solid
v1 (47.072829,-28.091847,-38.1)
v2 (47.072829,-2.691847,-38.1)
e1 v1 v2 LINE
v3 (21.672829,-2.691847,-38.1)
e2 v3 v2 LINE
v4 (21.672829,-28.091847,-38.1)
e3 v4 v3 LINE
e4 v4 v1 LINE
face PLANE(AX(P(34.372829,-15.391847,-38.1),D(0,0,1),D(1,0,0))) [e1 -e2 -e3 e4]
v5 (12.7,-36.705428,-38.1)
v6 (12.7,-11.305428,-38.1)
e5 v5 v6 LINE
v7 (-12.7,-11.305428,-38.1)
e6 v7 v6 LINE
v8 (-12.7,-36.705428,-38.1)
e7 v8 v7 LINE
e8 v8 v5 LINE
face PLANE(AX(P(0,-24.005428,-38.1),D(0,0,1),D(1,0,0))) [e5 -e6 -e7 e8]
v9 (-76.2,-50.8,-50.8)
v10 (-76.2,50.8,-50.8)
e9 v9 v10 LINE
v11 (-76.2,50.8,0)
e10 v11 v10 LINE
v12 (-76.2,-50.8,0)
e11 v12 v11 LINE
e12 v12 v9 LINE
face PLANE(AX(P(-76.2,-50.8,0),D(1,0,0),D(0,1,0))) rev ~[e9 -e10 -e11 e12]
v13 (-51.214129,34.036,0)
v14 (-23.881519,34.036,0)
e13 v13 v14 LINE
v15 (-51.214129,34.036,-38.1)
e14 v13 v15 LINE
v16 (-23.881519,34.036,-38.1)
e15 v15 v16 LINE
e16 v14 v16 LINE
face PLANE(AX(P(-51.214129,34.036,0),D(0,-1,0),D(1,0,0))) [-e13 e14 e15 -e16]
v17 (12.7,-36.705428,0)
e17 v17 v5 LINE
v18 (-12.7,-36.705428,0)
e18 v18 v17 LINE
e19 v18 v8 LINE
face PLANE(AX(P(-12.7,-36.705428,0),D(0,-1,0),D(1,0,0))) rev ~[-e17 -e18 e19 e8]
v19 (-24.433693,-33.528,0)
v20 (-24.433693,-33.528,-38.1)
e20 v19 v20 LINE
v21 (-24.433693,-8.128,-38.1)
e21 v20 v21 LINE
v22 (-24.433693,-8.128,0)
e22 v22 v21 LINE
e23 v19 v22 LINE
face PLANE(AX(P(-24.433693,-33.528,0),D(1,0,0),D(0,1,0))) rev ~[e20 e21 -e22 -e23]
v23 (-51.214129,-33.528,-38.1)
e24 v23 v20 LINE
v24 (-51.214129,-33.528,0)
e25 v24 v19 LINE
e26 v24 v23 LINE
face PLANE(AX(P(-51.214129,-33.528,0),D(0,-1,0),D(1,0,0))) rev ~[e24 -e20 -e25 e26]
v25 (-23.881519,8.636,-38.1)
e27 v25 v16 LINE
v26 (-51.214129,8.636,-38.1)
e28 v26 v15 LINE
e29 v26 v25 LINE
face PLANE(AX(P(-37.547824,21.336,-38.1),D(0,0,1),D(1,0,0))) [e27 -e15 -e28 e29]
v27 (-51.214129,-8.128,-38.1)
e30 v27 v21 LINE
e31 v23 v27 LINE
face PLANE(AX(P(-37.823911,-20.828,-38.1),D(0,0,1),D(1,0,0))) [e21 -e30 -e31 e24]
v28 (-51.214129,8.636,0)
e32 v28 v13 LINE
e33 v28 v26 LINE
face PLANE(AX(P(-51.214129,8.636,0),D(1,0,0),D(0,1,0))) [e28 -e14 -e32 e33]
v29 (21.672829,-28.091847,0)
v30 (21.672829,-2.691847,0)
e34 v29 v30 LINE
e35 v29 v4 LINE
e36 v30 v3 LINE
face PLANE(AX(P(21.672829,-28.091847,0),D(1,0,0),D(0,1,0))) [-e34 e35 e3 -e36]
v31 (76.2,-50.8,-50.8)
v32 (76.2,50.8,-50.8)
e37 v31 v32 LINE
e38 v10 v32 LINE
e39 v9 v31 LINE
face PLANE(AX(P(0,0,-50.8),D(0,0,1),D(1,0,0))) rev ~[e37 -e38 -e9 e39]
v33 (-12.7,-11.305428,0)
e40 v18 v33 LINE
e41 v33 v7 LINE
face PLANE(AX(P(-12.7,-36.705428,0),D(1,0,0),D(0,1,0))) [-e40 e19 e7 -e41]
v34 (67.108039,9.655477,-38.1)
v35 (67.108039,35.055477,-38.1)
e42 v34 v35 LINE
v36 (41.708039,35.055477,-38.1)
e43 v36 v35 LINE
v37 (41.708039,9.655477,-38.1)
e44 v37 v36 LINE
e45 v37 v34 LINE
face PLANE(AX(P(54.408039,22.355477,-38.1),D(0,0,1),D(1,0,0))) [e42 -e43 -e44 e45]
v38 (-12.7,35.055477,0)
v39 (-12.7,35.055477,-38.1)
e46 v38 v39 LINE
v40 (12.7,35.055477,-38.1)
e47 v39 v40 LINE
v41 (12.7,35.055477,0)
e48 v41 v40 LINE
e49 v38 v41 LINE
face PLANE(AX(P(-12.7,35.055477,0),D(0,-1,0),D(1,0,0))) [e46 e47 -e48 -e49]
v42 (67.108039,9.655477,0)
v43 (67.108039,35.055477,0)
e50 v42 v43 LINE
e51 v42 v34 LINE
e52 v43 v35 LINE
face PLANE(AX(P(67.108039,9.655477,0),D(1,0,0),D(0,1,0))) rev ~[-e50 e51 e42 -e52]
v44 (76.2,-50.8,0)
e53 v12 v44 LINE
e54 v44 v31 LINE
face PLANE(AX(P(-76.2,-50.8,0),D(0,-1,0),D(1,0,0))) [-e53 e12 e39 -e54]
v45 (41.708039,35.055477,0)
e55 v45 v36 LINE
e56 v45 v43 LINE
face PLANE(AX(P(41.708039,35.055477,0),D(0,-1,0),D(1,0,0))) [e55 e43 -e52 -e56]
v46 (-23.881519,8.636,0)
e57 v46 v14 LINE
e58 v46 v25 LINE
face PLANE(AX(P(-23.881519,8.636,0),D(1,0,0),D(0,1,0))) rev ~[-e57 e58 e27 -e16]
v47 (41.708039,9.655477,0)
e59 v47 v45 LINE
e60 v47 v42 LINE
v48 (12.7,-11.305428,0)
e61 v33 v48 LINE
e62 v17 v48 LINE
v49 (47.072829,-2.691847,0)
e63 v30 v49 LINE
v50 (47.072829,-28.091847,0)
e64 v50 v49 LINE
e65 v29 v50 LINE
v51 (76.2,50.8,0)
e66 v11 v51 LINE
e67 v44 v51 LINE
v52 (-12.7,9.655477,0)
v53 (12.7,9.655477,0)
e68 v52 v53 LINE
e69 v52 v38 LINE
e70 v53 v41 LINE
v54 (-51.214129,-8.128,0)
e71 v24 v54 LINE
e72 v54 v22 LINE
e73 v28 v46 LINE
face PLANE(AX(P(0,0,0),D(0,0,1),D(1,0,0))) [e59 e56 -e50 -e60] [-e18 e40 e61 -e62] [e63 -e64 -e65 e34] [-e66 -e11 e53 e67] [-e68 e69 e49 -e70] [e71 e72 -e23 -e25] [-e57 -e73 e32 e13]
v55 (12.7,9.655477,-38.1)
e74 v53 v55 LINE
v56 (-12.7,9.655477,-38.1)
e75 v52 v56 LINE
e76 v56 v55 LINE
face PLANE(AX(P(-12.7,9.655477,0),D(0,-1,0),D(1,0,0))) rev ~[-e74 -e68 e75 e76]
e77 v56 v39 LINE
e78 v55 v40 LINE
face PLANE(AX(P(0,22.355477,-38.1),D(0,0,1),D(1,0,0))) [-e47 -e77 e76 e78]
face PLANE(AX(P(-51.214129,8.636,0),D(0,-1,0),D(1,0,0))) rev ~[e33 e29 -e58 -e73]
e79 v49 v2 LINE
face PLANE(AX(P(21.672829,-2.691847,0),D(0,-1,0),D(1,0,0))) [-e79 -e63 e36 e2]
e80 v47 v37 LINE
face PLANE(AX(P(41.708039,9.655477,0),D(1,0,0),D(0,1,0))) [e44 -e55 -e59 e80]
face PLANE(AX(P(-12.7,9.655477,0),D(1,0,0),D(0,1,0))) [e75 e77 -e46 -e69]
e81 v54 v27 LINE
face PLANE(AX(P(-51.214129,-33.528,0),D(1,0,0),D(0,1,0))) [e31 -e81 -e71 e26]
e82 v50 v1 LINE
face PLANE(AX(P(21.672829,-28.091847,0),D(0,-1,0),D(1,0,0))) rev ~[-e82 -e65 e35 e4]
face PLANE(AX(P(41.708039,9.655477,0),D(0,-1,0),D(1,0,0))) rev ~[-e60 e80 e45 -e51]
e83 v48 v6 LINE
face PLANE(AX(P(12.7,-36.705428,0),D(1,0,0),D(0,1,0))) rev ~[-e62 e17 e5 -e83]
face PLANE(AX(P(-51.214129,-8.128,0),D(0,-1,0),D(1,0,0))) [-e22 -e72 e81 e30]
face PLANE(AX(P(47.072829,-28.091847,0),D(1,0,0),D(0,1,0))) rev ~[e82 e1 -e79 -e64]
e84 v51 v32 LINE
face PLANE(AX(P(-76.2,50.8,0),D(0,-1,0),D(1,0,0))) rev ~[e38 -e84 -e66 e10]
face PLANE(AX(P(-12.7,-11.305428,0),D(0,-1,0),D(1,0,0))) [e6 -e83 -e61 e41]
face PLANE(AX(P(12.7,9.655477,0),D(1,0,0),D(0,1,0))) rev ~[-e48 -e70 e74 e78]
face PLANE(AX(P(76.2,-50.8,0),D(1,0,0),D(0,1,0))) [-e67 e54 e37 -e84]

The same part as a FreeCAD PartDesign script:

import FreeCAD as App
import Part
import Sketcher
from FreeCAD import Vector
Q = App.Units.Quantity


def add_polygon(sketch, points):
    """Adds a closed chain of lines whose ends are joined by coincident constraints."""
    first, n = sketch.GeometryCount, len(points)
    for a, b in zip(points, points[1:] + points[:1]):
        sketch.addGeometry(Part.LineSegment(App.Vector(*a, 0), App.Vector(*b, 0)), False)
    for i in range(n):
        sketch.addConstraint(Sketcher.Constraint("Coincident", first + i, 2, first + (i + 1) % n, 1))

doc = App.newDocument("Part")
body = doc.addObject("PartDesign::Body", "Body")

# Sketch on XY plane
sketch1 = body.newObject("Sketcher::SketchObject", "Sketch")
sketch1.AttachmentSupport = (doc.getObject("XY_Plane"), [""])
sketch1.MapMode = "FlatFace"
add_polygon(sketch1, [(-76, 51), (-76, -51), (76, -51), (76, 51)])  # lines 0-3
sketch1.addConstraint([
    Sketcher.Constraint("Vertical", 0),
    Sketcher.Constraint("Horizontal", 1),
    Sketcher.Constraint("Vertical", 2),
    Sketcher.Constraint("Horizontal", 3),
    Sketcher.Constraint("Symmetric", 0, 2, 2, 2, -1, 1),
    Sketcher.Constraint("DistanceX", 1, 1, 1, 2, Q("6 in")),
    Sketcher.Constraint("DistanceY", 0, 2, 0, 1, Q("4 in")),
])
pad1 = body.newObject("PartDesign::Pad", "Pad")
pad1.Profile = sketch1
pad1.Length = Q("2 in")
pad1.Reversed = True

# Sketch on XY plane
sketch2 = body.newObject("Sketcher::SketchObject", "Sketch001")
sketch2.AttachmentSupport = (doc.getObject("XY_Plane"), [""])
sketch2.MapMode = "FlatFace"
add_polygon(sketch2, [(-51, 34), (-51, 9), (-24, 9), (-24, 34)])  # lines 0-3
add_polygon(sketch2, [(-13, 35), (-13, 10), (13, 10), (13, 35)])  # lines 4-7
add_polygon(sketch2, [(42, 35), (42, 10), (67, 10), (67, 35)])  # lines 8-11
add_polygon(sketch2, [(-13, -11), (-13, -37), (13, -37), (13, -11)])  # lines 12-15
add_polygon(sketch2, [(-51, -8), (-51, -34), (-24, -34), (-24, -8)])  # lines 16-19
add_polygon(sketch2, [(22, -3), (22, -28), (47, -28), (47, -3)])  # lines 20-23
sketch2.addConstraint([
    Sketcher.Constraint("Vertical", 0),
    Sketcher.Constraint("Horizontal", 1),
    Sketcher.Constraint("Vertical", 2),
    Sketcher.Constraint("Horizontal", 3),
    Sketcher.Constraint("Vertical", 4),
    Sketcher.Constraint("Horizontal", 5),
    Sketcher.Constraint("Vertical", 6),
    Sketcher.Constraint("Horizontal", 7),
    Sketcher.Constraint("Vertical", 8),
    Sketcher.Constraint("Horizontal", 9),
    Sketcher.Constraint("Vertical", 10),
    Sketcher.Constraint("Horizontal", 11),
    Sketcher.Constraint("Vertical", 12),
    Sketcher.Constraint("Horizontal", 13),
    Sketcher.Constraint("Vertical", 14),
    Sketcher.Constraint("Horizontal", 15),
    Sketcher.Constraint("Vertical", 16),
    Sketcher.Constraint("Horizontal", 17),
    Sketcher.Constraint("Vertical", 18),
    Sketcher.Constraint("Horizontal", 19),
    Sketcher.Constraint("Vertical", 20),
    Sketcher.Constraint("Horizontal", 21),
    Sketcher.Constraint("Vertical", 22),
    Sketcher.Constraint("Horizontal", 23),
    Sketcher.Constraint("Horizontal", 5, 2, 8, 2),
    Sketcher.Constraint("Horizontal", 7, 2, 10, 2),
    Sketcher.Constraint("Vertical", 7, 2, 12, 2),
    Sketcher.Constraint("Vertical", 6, 2, 13, 2),
    Sketcher.Constraint("Vertical", 3, 2, 16, 2),
    Sketcher.Constraint("Equal", 7, 9),
    Sketcher.Constraint("Equal", 15, 21),
    Sketcher.Constraint("Equal", 23, 0),
    Sketcher.Constraint("Equal", 2, 4),
    Sketcher.Constraint("Equal", 10, 12),
    Sketcher.Constraint("Equal", 14, 16),
    Sketcher.Constraint("Equal", 18, 20),
    Sketcher.Constraint("DistanceX", 5, 1, 5, 2, Q("1 in")),
    Sketcher.Constraint("DistanceX", 4, 2, -1, 1, Q("0.5 in")),
    Sketcher.Constraint("DistanceY", -1, 1, 0, 2, Q("0.34 in")),
    Sketcher.Constraint("DistanceY", 16, 2, -1, 1, Q("1.32 in")),
    Sketcher.Constraint("DistanceX", 1, 1, 1, 2, 27.33261),
    Sketcher.Constraint("DistanceX", 17, 1, 17, 2, 26.780436),
    Sketcher.Constraint("DistanceX", 0, 2, -1, 1, 51.214129),
    Sketcher.Constraint("DistanceX", -1, 1, 8, 2, 41.708039),
    Sketcher.Constraint("DistanceX", -1, 1, 20, 2, 21.672829),
    Sketcher.Constraint("DistanceY", 16, 2, 15, 2, 22.222572),
    Sketcher.Constraint("DistanceY", 13, 2, 20, 2, 8.613581),
    Sketcher.Constraint("DistanceY", -1, 1, 4, 2, 9.655477),
])
pocket1 = body.newObject("PartDesign::Pocket", "Pocket")
pocket1.Profile = sketch2
pocket1.Length = Q("1.5 in")

doc.recompute()
